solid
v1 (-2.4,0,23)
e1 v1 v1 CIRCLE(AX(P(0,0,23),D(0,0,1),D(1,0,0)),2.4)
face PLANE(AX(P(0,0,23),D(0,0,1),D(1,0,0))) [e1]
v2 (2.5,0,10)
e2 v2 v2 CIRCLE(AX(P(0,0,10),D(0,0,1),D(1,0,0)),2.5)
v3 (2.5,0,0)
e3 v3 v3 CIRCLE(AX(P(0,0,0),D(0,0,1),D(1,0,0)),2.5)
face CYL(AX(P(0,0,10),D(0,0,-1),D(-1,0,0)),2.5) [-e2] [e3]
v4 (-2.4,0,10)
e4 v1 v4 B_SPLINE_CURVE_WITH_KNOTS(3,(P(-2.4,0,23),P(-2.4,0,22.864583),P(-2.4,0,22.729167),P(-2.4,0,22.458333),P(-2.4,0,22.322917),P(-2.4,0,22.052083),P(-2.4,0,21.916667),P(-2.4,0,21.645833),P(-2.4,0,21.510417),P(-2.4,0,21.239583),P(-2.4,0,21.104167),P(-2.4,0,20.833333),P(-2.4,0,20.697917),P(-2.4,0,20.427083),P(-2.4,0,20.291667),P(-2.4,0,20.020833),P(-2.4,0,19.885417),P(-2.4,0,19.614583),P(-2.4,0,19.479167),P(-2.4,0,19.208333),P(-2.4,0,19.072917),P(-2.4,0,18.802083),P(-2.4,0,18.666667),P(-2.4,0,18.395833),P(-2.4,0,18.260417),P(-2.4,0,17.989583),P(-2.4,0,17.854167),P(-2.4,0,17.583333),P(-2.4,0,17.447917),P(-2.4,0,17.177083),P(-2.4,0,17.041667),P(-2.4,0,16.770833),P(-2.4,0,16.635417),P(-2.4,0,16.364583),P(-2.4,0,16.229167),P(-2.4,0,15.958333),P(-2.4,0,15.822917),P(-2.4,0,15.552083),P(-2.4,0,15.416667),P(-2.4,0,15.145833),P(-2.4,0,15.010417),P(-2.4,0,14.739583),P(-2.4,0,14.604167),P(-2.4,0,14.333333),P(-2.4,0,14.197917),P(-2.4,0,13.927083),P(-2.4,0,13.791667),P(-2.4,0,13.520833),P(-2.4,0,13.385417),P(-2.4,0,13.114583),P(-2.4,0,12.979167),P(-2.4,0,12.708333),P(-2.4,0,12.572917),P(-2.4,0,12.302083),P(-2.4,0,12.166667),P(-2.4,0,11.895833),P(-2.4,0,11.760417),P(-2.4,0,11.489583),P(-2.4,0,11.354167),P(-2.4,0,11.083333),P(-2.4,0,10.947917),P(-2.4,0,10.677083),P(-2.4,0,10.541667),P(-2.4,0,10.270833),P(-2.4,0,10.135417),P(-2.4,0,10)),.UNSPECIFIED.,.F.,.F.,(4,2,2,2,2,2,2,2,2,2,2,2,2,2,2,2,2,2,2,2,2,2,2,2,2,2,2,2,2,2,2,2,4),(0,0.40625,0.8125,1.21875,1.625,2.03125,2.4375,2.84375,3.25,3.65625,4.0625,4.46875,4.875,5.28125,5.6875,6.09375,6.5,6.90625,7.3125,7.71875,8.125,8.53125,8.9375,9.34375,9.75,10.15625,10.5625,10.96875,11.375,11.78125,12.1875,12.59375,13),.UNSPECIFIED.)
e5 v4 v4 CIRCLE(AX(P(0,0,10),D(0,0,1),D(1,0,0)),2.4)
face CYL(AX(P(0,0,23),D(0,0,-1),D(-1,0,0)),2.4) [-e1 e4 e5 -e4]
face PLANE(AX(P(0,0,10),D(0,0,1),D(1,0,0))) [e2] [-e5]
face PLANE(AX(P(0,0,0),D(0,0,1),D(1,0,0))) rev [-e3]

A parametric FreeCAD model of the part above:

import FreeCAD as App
import Part
import Sketcher

doc = App.newDocument("Part")
body = doc.addObject("PartDesign::Body", "Body")

# Sketch on XY plane
sketch1 = doc.addObject("Sketcher::SketchObject", "Sketch")
body.addObject(sketch1)
sketch1.AttachmentSupport = (doc.XY_Plane, [""])
sketch1.MapMode = "FlatFace"
sketch1.addGeometry(Part.Circle(App.Vector(0, 0, 0), App.Vector(0, 0, 1), 2.5), False)
sketch1.addConstraint(Sketcher.Constraint("Coincident", 0, 3, -1, 1))
sketch1.addConstraint(Sketcher.Constraint("Diameter", 0, 5.0))
pad1 = doc.addObject("PartDesign::Pad", "Pad")
body.addObject(pad1)
pad1.Profile = sketch1
pad1.Length = 10

# Sketch on XY plane
sketch2 = doc.addObject("Sketcher::SketchObject", "Sketch001")
body.addObject(sketch2)
sketch2.AttachmentSupport = (doc.XY_Plane, [""])
sketch2.MapMode = "FlatFace"
sketch2.AttachmentOffset = App.Placement(App.Vector(0, 0, 10), App.Rotation())
sketch2.addGeometry(Part.Circle(App.Vector(0, 0, 0), App.Vector(0, 0, 1), 2.4), False)
sketch2.addConstraint(Sketcher.Constraint("Coincident", 0, 3, -1, 1))
sketch2.addConstraint(Sketcher.Constraint("Diameter", 0, 4.8))
pad2 = doc.addObject("PartDesign::Pad", "Pad001")
body.addObject(pad2)
pad2.Profile = sketch2
pad2.Length = 13

doc.recompute()
